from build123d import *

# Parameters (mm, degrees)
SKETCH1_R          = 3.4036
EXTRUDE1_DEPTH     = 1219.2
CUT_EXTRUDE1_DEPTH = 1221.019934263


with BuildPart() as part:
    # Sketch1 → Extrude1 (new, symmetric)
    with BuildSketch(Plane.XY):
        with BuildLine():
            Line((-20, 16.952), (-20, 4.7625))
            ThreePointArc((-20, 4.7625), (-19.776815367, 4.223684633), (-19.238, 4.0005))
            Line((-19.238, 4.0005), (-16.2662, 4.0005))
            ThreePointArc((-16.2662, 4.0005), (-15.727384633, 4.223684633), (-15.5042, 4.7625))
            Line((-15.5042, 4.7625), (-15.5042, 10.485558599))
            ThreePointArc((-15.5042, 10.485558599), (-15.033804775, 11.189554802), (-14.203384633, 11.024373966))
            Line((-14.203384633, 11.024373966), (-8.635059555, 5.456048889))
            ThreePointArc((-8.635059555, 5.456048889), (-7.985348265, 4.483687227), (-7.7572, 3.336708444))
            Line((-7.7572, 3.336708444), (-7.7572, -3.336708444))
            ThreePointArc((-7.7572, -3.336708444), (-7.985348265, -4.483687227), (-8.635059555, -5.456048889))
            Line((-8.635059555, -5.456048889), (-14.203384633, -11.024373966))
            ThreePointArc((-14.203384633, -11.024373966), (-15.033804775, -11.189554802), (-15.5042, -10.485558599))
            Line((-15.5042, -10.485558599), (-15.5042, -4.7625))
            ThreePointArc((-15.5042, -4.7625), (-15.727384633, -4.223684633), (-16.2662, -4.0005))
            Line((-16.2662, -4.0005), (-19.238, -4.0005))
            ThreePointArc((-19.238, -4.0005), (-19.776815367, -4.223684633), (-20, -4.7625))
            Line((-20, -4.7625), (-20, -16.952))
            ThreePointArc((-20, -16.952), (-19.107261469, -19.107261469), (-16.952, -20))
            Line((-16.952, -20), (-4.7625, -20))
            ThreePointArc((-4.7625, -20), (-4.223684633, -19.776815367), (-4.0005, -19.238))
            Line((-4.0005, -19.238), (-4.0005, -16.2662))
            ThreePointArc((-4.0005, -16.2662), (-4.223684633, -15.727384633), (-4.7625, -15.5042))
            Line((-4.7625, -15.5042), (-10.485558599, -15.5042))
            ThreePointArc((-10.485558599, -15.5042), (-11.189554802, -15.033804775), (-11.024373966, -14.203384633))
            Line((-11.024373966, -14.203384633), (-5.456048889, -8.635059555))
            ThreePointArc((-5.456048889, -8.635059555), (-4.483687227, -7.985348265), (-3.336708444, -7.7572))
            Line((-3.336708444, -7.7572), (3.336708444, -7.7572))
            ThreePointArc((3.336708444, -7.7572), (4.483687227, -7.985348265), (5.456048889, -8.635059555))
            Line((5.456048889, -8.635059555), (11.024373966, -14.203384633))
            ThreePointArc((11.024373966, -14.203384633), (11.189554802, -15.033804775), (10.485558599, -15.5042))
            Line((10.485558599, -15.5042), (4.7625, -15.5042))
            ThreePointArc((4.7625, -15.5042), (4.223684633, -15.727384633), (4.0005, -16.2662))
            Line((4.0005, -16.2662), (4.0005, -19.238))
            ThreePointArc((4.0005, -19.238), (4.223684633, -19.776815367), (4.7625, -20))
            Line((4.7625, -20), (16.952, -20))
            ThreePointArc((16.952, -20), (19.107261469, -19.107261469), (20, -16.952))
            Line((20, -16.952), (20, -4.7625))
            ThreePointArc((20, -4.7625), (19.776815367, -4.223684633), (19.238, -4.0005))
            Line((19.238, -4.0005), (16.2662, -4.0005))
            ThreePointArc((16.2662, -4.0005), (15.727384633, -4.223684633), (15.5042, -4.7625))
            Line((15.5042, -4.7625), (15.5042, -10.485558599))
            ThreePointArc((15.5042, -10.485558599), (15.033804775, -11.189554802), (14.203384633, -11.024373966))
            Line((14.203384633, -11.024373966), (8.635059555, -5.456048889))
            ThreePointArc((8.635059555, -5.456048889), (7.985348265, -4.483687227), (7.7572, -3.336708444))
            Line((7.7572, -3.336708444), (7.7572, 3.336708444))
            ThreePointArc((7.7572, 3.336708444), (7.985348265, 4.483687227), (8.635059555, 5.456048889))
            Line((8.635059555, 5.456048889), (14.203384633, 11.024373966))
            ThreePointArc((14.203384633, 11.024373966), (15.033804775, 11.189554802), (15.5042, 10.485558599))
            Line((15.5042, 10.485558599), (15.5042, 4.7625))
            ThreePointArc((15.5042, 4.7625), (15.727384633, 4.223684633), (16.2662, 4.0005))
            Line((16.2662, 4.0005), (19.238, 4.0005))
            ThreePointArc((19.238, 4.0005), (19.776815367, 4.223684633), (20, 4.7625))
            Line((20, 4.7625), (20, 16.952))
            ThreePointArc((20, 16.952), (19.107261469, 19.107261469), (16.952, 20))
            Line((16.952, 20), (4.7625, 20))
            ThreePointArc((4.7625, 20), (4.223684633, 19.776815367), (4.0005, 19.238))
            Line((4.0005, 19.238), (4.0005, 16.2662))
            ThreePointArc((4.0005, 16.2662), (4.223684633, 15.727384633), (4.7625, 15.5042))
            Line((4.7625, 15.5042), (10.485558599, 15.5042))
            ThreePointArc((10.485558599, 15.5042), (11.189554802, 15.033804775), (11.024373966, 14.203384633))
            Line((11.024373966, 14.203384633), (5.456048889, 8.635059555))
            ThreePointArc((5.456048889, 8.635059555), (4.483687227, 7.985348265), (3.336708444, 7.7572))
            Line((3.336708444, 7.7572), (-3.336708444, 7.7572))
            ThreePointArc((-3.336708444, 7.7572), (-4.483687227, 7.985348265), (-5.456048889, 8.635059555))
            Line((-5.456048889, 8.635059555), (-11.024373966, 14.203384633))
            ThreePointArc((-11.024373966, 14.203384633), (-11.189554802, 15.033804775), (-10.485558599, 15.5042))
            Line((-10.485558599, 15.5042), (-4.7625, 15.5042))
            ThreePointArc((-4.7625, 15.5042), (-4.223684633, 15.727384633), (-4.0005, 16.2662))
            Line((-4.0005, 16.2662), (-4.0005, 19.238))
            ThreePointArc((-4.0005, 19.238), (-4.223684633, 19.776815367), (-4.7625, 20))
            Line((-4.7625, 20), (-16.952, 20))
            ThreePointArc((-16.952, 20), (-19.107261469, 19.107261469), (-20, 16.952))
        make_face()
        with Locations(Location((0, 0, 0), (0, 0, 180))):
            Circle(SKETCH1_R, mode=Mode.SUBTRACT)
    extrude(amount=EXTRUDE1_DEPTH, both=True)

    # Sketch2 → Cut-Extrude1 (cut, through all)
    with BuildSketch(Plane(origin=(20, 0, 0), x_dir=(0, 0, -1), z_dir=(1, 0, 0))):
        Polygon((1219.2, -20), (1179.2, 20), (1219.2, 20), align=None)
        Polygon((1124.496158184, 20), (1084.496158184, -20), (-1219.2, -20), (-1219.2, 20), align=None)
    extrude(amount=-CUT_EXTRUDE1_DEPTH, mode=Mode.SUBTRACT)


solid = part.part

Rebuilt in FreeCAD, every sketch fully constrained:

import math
import FreeCAD as App
import Part
import Sketcher

V = App.Vector
Q = App.Units.Quantity

doc = App.newDocument("Part")
body = doc.addObject("PartDesign::Body", "Body")

# Sketch on XY plane
sketch1 = body.newObject("Sketcher::SketchObject", "Sketch")
sketch1.AttachmentSupport = (doc.getObject("XY_Plane"), [""])
sketch1.MapMode = "FlatFace"
sketch1.addGeometry([
    Part.LineSegment(V(-20, 17, 0), V(-20, 4.8, 0)),  # 0
    Part.ArcOfCircle(Part.Circle(V(-19.2, 4.8, 0), V(0, 0, 1), 0.8), math.radians(-180), math.radians(-90)),  # 1
    Part.LineSegment(V(-19.2, 4, 0), V(-16.3, 4, 0)),  # 2
    Part.ArcOfCircle(Part.Circle(V(-16.3, 4.8, 0), V(0, 0, 1), 0.8), math.radians(-90), math.radians(0)),  # 3
    Part.LineSegment(V(-15.5, 4.8, 0), V(-15.5, 10.5, 0)),  # 4
    Part.ArcOfCircle(Part.Circle(V(-14.7, 10.5, 0), V(0, 0, 1), 0.8), math.radians(45), math.radians(180)),  # 5
    Part.LineSegment(V(-14.2, 11, 0), V(-8.6, 5.5, 0)),  # 6
    Part.ArcOfCircle(Part.Circle(V(-10.8, 3.3, 0), V(0, 0, 1), 3), math.radians(0), math.radians(45)),  # 7
    Part.LineSegment(V(-7.8, 3.3, 0), V(-7.8, -3.3, 0)),  # 8
    Part.ArcOfCircle(Part.Circle(V(-10.8, -3.3, 0), V(0, 0, 1), 3), math.radians(-45), math.radians(0)),  # 9
    Part.LineSegment(V(-8.6, -5.5, 0), V(-14.2, -11, 0)),  # 10
    Part.ArcOfCircle(Part.Circle(V(-14.7, -10.5, 0), V(0, 0, 1), 0.8), math.radians(-180), math.radians(-45)),  # 11
    Part.LineSegment(V(-15.5, -10.5, 0), V(-15.5, -4.8, 0)),  # 12
    Part.ArcOfCircle(Part.Circle(V(-16.3, -4.8, 0), V(0, 0, 1), 0.8), math.radians(0), math.radians(90)),  # 13
    Part.LineSegment(V(-16.3, -4, 0), V(-19.2, -4, 0)),  # 14
    Part.ArcOfCircle(Part.Circle(V(-19.2, -4.8, 0), V(0, 0, 1), 0.8), math.radians(90), math.radians(180)),  # 15
    Part.LineSegment(V(-20, -4.8, 0), V(-20, -17, 0)),  # 16
    Part.ArcOfCircle(Part.Circle(V(-17, -17, 0), V(0, 0, 1), 3), math.radians(180), math.radians(270)),  # 17
    Part.LineSegment(V(-17, -20, 0), V(-4.8, -20, 0)),  # 18
    Part.ArcOfCircle(Part.Circle(V(-4.8, -19.2, 0), V(0, 0, 1), 0.8), math.radians(-90), math.radians(0)),  # 19
    Part.LineSegment(V(-4, -19.2, 0), V(-4, -16.3, 0)),  # 20
    Part.ArcOfCircle(Part.Circle(V(-4.8, -16.3, 0), V(0, 0, 1), 0.8), math.radians(0), math.radians(90)),  # 21
    Part.LineSegment(V(-4.8, -15.5, 0), V(-10.5, -15.5, 0)),  # 22
    Part.ArcOfCircle(Part.Circle(V(-10.5, -14.7, 0), V(0, 0, 1), 0.8), math.radians(135), math.radians(270)),  # 23
    Part.LineSegment(V(-11, -14.2, 0), V(-5.5, -8.6, 0)),  # 24
    Part.ArcOfCircle(Part.Circle(V(-3.3, -10.8, 0), V(0, 0, 1), 3), math.radians(90), math.radians(135)),  # 25
    Part.LineSegment(V(-3.3, -7.8, 0), V(3.3, -7.8, 0)),  # 26
    Part.ArcOfCircle(Part.Circle(V(3.3, -10.8, 0), V(0, 0, 1), 3), math.radians(45), math.radians(90)),  # 27
    Part.LineSegment(V(5.5, -8.6, 0), V(11, -14.2, 0)),  # 28
    Part.ArcOfCircle(Part.Circle(V(10.5, -14.7, 0), V(0, 0, 1), 0.8), math.radians(-90), math.radians(45)),  # 29
    Part.LineSegment(V(10.5, -15.5, 0), V(4.8, -15.5, 0)),  # 30
    Part.ArcOfCircle(Part.Circle(V(4.8, -16.3, 0), V(0, 0, 1), 0.8), math.radians(90), math.radians(180)),  # 31
    Part.LineSegment(V(4, -16.3, 0), V(4, -19.2, 0)),  # 32
    Part.ArcOfCircle(Part.Circle(V(4.8, -19.2, 0), V(0, 0, 1), 0.8), math.radians(-180), math.radians(-90)),  # 33
    Part.LineSegment(V(4.8, -20, 0), V(17, -20, 0)),  # 34
    Part.ArcOfCircle(Part.Circle(V(17, -17, 0), V(0, 0, 1), 3), math.radians(-90), math.radians(0)),  # 35
    Part.LineSegment(V(20, -17, 0), V(20, -4.8, 0)),  # 36
    Part.ArcOfCircle(Part.Circle(V(19.2, -4.8, 0), V(0, 0, 1), 0.8), math.radians(0), math.radians(90)),  # 37
    Part.LineSegment(V(19.2, -4, 0), V(16.3, -4, 0)),  # 38
    Part.ArcOfCircle(Part.Circle(V(16.3, -4.8, 0), V(0, 0, 1), 0.8), math.radians(90), math.radians(180)),  # 39
    Part.LineSegment(V(15.5, -4.8, 0), V(15.5, -10.5, 0)),  # 40
    Part.ArcOfCircle(Part.Circle(V(14.7, -10.5, 0), V(0, 0, 1), 0.8), math.radians(-135), math.radians(0)),  # 41
    Part.LineSegment(V(14.2, -11, 0), V(8.6, -5.5, 0)),  # 42
    Part.ArcOfCircle(Part.Circle(V(10.8, -3.3, 0), V(0, 0, 1), 3), math.radians(-180), math.radians(-135)),  # 43
    Part.LineSegment(V(7.8, -3.3, 0), V(7.8, 3.3, 0)),  # 44
    Part.ArcOfCircle(Part.Circle(V(10.8, 3.3, 0), V(0, 0, 1), 3), math.radians(135), math.radians(180)),  # 45
    Part.LineSegment(V(8.6, 5.5, 0), V(14.2, 11, 0)),  # 46
    Part.ArcOfCircle(Part.Circle(V(14.7, 10.5, 0), V(0, 0, 1), 0.8), math.radians(0), math.radians(135)),  # 47
    Part.LineSegment(V(15.5, 10.5, 0), V(15.5, 4.8, 0)),  # 48
    Part.ArcOfCircle(Part.Circle(V(16.3, 4.8, 0), V(0, 0, 1), 0.8), math.radians(-180), math.radians(-90)),  # 49
    Part.LineSegment(V(16.3, 4, 0), V(19.2, 4, 0)),  # 50
    Part.ArcOfCircle(Part.Circle(V(19.2, 4.8, 0), V(0, 0, 1), 0.8), math.radians(-90), math.radians(0)),  # 51
    Part.LineSegment(V(20, 4.8, 0), V(20, 17, 0)),  # 52
    Part.ArcOfCircle(Part.Circle(V(17, 17, 0), V(0, 0, 1), 3), math.radians(0), math.radians(90)),  # 53
    Part.LineSegment(V(17, 20, 0), V(4.8, 20, 0)),  # 54
    Part.ArcOfCircle(Part.Circle(V(4.8, 19.2, 0), V(0, 0, 1), 0.8), math.radians(90), math.radians(180)),  # 55
    Part.LineSegment(V(4, 19.2, 0), V(4, 16.3, 0)),  # 56
    Part.ArcOfCircle(Part.Circle(V(4.8, 16.3, 0), V(0, 0, 1), 0.8), math.radians(-180), math.radians(-90)),  # 57
    Part.LineSegment(V(4.8, 15.5, 0), V(10.5, 15.5, 0)),  # 58
    Part.ArcOfCircle(Part.Circle(V(10.5, 14.7, 0), V(0, 0, 1), 0.8), math.radians(-45), math.radians(90)),  # 59
    Part.LineSegment(V(11, 14.2, 0), V(5.5, 8.6, 0)),  # 60
    Part.ArcOfCircle(Part.Circle(V(3.3, 10.8, 0), V(0, 0, 1), 3), math.radians(-90), math.radians(-45)),  # 61
    Part.LineSegment(V(3.3, 7.8, 0), V(-3.3, 7.8, 0)),  # 62
    Part.ArcOfCircle(Part.Circle(V(-3.3, 10.8, 0), V(0, 0, 1), 3), math.radians(-135), math.radians(-90)),  # 63
    Part.LineSegment(V(-5.5, 8.6, 0), V(-11, 14.2, 0)),  # 64
    Part.ArcOfCircle(Part.Circle(V(-10.5, 14.7, 0), V(0, 0, 1), 0.8), math.radians(90), math.radians(225)),  # 65
    Part.LineSegment(V(-10.5, 15.5, 0), V(-4.8, 15.5, 0)),  # 66
    Part.ArcOfCircle(Part.Circle(V(-4.8, 16.3, 0), V(0, 0, 1), 0.8), math.radians(-90), math.radians(0)),  # 67
    Part.LineSegment(V(-4, 16.3, 0), V(-4, 19.2, 0)),  # 68
    Part.ArcOfCircle(Part.Circle(V(-4.8, 19.2, 0), V(0, 0, 1), 0.8), math.radians(0), math.radians(90)),  # 69
    Part.LineSegment(V(-4.8, 20, 0), V(-17, 20, 0)),  # 70
    Part.ArcOfCircle(Part.Circle(V(-17, 17, 0), V(0, 0, 1), 3), math.radians(90), math.radians(180)),  # 71
    Part.Circle(V(0, 0, 0), V(0, 0, 1), 3.4),  # 72
], False)
sketch1.addConstraint([
    Sketcher.Constraint("Tangent", 0, 2, 1, 1),
    Sketcher.Constraint("Tangent", 1, 2, 2, 1),
    Sketcher.Constraint("Tangent", 2, 2, 3, 1),
    Sketcher.Constraint("Tangent", 3, 2, 4, 1),
    Sketcher.Constraint("Tangent", 4, 2, 5, 2),
    Sketcher.Constraint("Tangent", 5, 1, 6, 1),
    Sketcher.Constraint("Tangent", 6, 2, 7, 2),
    Sketcher.Constraint("Tangent", 7, 1, 8, 1),
    Sketcher.Constraint("Tangent", 8, 2, 9, 2),
    Sketcher.Constraint("Tangent", 9, 1, 10, 1),
    Sketcher.Constraint("Tangent", 10, 2, 11, 2),
    Sketcher.Constraint("Tangent", 11, 1, 12, 1),
    Sketcher.Constraint("Tangent", 12, 2, 13, 1),
    Sketcher.Constraint("Tangent", 13, 2, 14, 1),
    Sketcher.Constraint("Tangent", 14, 2, 15, 1),
    Sketcher.Constraint("Tangent", 15, 2, 16, 1),
    Sketcher.Constraint("Tangent", 16, 2, 17, 1),
    Sketcher.Constraint("Tangent", 17, 2, 18, 1),
    Sketcher.Constraint("Tangent", 18, 2, 19, 1),
    Sketcher.Constraint("Tangent", 19, 2, 20, 1),
    Sketcher.Constraint("Tangent", 20, 2, 21, 1),
    Sketcher.Constraint("Tangent", 21, 2, 22, 1),
    Sketcher.Constraint("Tangent", 22, 2, 23, 2),
    Sketcher.Constraint("Tangent", 23, 1, 24, 1),
    Sketcher.Constraint("Tangent", 24, 2, 25, 2),
    Sketcher.Constraint("Tangent", 25, 1, 26, 1),
    Sketcher.Constraint("Tangent", 26, 2, 27, 2),
    Sketcher.Constraint("Tangent", 27, 1, 28, 1),
    Sketcher.Constraint("Tangent", 28, 2, 29, 2),
    Sketcher.Constraint("Tangent", 29, 1, 30, 1),
    Sketcher.Constraint("Tangent", 30, 2, 31, 1),
    Sketcher.Constraint("Tangent", 31, 2, 32, 1),
    Sketcher.Constraint("Tangent", 32, 2, 33, 1),
    Sketcher.Constraint("Tangent", 33, 2, 34, 1),
    Sketcher.Constraint("Tangent", 34, 2, 35, 1),
    Sketcher.Constraint("Tangent", 35, 2, 36, 1),
    Sketcher.Constraint("Tangent", 36, 2, 37, 1),
    Sketcher.Constraint("Tangent", 37, 2, 38, 1),
    Sketcher.Constraint("Tangent", 38, 2, 39, 1),
    Sketcher.Constraint("Tangent", 39, 2, 40, 1),
    Sketcher.Constraint("Tangent", 40, 2, 41, 2),
    Sketcher.Constraint("Tangent", 41, 1, 42, 1),
    Sketcher.Constraint("Tangent", 42, 2, 43, 2),
    Sketcher.Constraint("Tangent", 43, 1, 44, 1),
    Sketcher.Constraint("Tangent", 44, 2, 45, 2),
    Sketcher.Constraint("Tangent", 45, 1, 46, 1),
    Sketcher.Constraint("Tangent", 46, 2, 47, 2),
    Sketcher.Constraint("Tangent", 47, 1, 48, 1),
    Sketcher.Constraint("Tangent", 48, 2, 49, 1),
    Sketcher.Constraint("Tangent", 49, 2, 50, 1),
    Sketcher.Constraint("Tangent", 50, 2, 51, 1),
    Sketcher.Constraint("Tangent", 51, 2, 52, 1),
    Sketcher.Constraint("Tangent", 52, 2, 53, 1),
    Sketcher.Constraint("Tangent", 53, 2, 54, 1),
    Sketcher.Constraint("Tangent", 54, 2, 55, 1),
    Sketcher.Constraint("Tangent", 55, 2, 56, 1),
    Sketcher.Constraint("Tangent", 56, 2, 57, 1),
    Sketcher.Constraint("Tangent", 57, 2, 58, 1),
    Sketcher.Constraint("Tangent", 58, 2, 59, 2),
    Sketcher.Constraint("Tangent", 59, 1, 60, 1),
    Sketcher.Constraint("Tangent", 60, 2, 61, 2),
    Sketcher.Constraint("Tangent", 61, 1, 62, 1),
    Sketcher.Constraint("Tangent", 62, 2, 63, 2),
    Sketcher.Constraint("Tangent", 63, 1, 64, 1),
    Sketcher.Constraint("Tangent", 64, 2, 65, 2),
    Sketcher.Constraint("Tangent", 65, 1, 66, 1),
    Sketcher.Constraint("Tangent", 66, 2, 67, 1),
    Sketcher.Constraint("Tangent", 67, 2, 68, 1),
    Sketcher.Constraint("Tangent", 68, 2, 69, 1),
    Sketcher.Constraint("Tangent", 69, 2, 70, 1),
    Sketcher.Constraint("Tangent", 70, 2, 71, 1),
    Sketcher.Constraint("Tangent", 71, 2, 0, 1),
    Sketcher.Constraint("Vertical", 0),
    Sketcher.Constraint("Horizontal", 2),
    Sketcher.Constraint("Vertical", 4),
    Sketcher.Constraint("Vertical", 8),
    Sketcher.Constraint("Vertical", 12),
    Sketcher.Constraint("Horizontal", 14),
    Sketcher.Constraint("Vertical", 16),
    Sketcher.Constraint("Horizontal", 18),
    Sketcher.Constraint("Vertical", 20),
    Sketcher.Constraint("Horizontal", 22),
    Sketcher.Constraint("Horizontal", 26),
    Sketcher.Constraint("Horizontal", 30),
    Sketcher.Constraint("Vertical", 32),
    Sketcher.Constraint("Horizontal", 34),
    Sketcher.Constraint("Vertical", 36),
    Sketcher.Constraint("Horizontal", 38),
    Sketcher.Constraint("Vertical", 40),
    Sketcher.Constraint("Vertical", 44),
    Sketcher.Constraint("Vertical", 48),
    Sketcher.Constraint("Horizontal", 50),
    Sketcher.Constraint("Vertical", 52),
    Sketcher.Constraint("Horizontal", 54),
    Sketcher.Constraint("Vertical", 56),
    Sketcher.Constraint("Horizontal", 58),
    Sketcher.Constraint("Horizontal", 62),
    Sketcher.Constraint("Horizontal", 66),
    Sketcher.Constraint("Vertical", 68),
    Sketcher.Constraint("Horizontal", 70),
    Sketcher.Constraint("Coincident", 72, 3, -1, 1),
    Sketcher.Constraint("Equal", 1, 3),
    Sketcher.Constraint("Equal", 3, 5),
    Sketcher.Constraint("Equal", 7, 9),
    Sketcher.Constraint("Equal", 5, 11),
    Sketcher.Constraint("Equal", 11, 13),
    Sketcher.Constraint("Equal", 13, 15),
    Sketcher.Constraint("Equal", 15, 19),
    Sketcher.Constraint("Equal", 19, 21),
    Sketcher.Constraint("Equal", 21, 23),
    Sketcher.Constraint("Equal", 9, 25),
    Sketcher.Constraint("Equal", 25, 27),
    Sketcher.Constraint("Equal", 23, 29),
    Sketcher.Constraint("Equal", 29, 31),
    Sketcher.Constraint("Equal", 31, 33),
    Sketcher.Constraint("Equal", 17, 35),
    Sketcher.Constraint("Equal", 33, 37),
    Sketcher.Constraint("Equal", 37, 39),
    Sketcher.Constraint("Equal", 39, 41),
    Sketcher.Constraint("Equal", 27, 43),
    Sketcher.Constraint("Equal", 43, 45),
    Sketcher.Constraint("Equal", 41, 47),
    Sketcher.Constraint("Equal", 47, 49),
    Sketcher.Constraint("Equal", 49, 51),
    Sketcher.Constraint("Equal", 35, 53),
    Sketcher.Constraint("Equal", 51, 55),
    Sketcher.Constraint("Equal", 55, 57),
    Sketcher.Constraint("Equal", 57, 59),
    Sketcher.Constraint("Equal", 45, 61),
    Sketcher.Constraint("Equal", 61, 63),
    Sketcher.Constraint("Equal", 59, 65),
    Sketcher.Constraint("Equal", 65, 67),
    Sketcher.Constraint("Equal", 67, 69),
    Sketcher.Constraint("Equal", 53, 71),
    Sketcher.Constraint("Symmetric", 1, 3, 37, 3, -1, 1),
    Sketcher.Constraint("Symmetric", 5, 3, 41, 3, -1, 1),
    Sketcher.Constraint("Symmetric", 7, 3, 43, 3, -1, 1),
    Sketcher.Constraint("Symmetric", 11, 3, 47, 3, -1, 1),
    Sketcher.Constraint("Symmetric", 15, 3, 51, 3, -1, 1),
    Sketcher.Constraint("Symmetric", 19, 3, 55, 3, -1, 1),
    Sketcher.Constraint("Symmetric", 23, 3, 59, 3, -1, 1),
    Sketcher.Constraint("Symmetric", 25, 3, 61, 3, -1, 1),
    Sketcher.Constraint("Symmetric", 29, 3, 65, 3, -1, 1),
    Sketcher.Constraint("Symmetric", 33, 3, 69, 3, -1, 1),
    Sketcher.Constraint("Symmetric", 23, 3, 29, 3, -2),
    Sketcher.Constraint("Symmetric", 19, 3, 33, 3, -2),
    Sketcher.Constraint("Symmetric", 15, 3, 37, 3, -2),
    Sketcher.Constraint("Symmetric", 11, 3, 41, 3, -2),
    Sketcher.Constraint("Perpendicular", 6, 10),
    Sketcher.Constraint("Parallel", 10, 24),
    Sketcher.Constraint("Perpendicular", 24, 28),
    Sketcher.Constraint("Perpendicular", 42, 46),
    Sketcher.Constraint("Perpendicular", 60, 64),
    Sketcher.Constraint("Horizontal", 9, 3, 43, 3),
    Sketcher.Constraint("Equal", 70, 0),
    Sketcher.Constraint("Equal", 66, 4),
    Sketcher.Constraint("Equal", 62, 8),
    Sketcher.Constraint("Equal", 50, 20),
    Sketcher.Constraint("Equal", 10, 24),
    Sketcher.Constraint("Radius", 1, Q("0.03 in")),
    Sketcher.Constraint("Radius", 17, Q("0.12 in")),
    Sketcher.Constraint("Diameter", 72, Q("0.268 in")),
    Sketcher.Constraint("Radius", 7, Q("0.118 in")),
    Sketcher.Constraint("DistanceX", 2, 1, 2, 2, Q("0.117 in")),
    Sketcher.Constraint("DistanceY", -1, 1, 1, 3, Q("0.1875 in")),
    Sketcher.Constraint("DistanceX", 18, 1, 18, 2, Q("12.1895 mm")),
    Sketcher.Constraint("Distance", 6, Q("7.874801 mm")),
    Sketcher.Constraint("DistanceX", 22, 2, 22, 1, Q("5.723059 mm")),
])
pad1 = body.newObject("PartDesign::Pad", "Pad")
pad1.Profile = sketch1
pad1.Length = Q("96 in")
pad1.Midplane = True

# Sketch on YZ plane
sketch2 = body.newObject("Sketcher::SketchObject", "Sketch001")
sketch2.AttachmentSupport = (doc.getObject("YZ_Plane"), [""])
sketch2.MapMode = "FlatFace"
sketch2.AttachmentOffset = App.Placement(V(0, 0, 20), App.Rotation())
sketch2.addGeometry([
    Part.LineSegment(V(20, -1179, 0), V(-20, -1219, 0)),  # 0
    Part.LineSegment(V(-20, -1219, 0), V(20, -1219, 0)),  # 1
    Part.LineSegment(V(20, -1219, 0), V(20, -1179, 0)),  # 2
    Part.LineSegment(V(-20, -1084, 0), V(20, -1124, 0)),  # 3
    Part.LineSegment(V(20, -1124, 0), V(20, 1219, 0)),  # 4
    Part.LineSegment(V(20, 1219, 0), V(-20, 1219, 0)),  # 5
    Part.LineSegment(V(-20, 1219, 0), V(-20, -1084, 0)),  # 6
], False)
sketch2.addConstraint([
    Sketcher.Constraint("Coincident", 0, 2, 1, 1),
    Sketcher.Constraint("Coincident", 1, 2, 2, 1),
    Sketcher.Constraint("Coincident", 2, 2, 0, 1),
    Sketcher.Constraint("Coincident", 3, 2, 4, 1),
    Sketcher.Constraint("Coincident", 4, 2, 5, 1),
    Sketcher.Constraint("Coincident", 5, 2, 6, 1),
    Sketcher.Constraint("Coincident", 6, 2, 3, 1),
    Sketcher.Constraint("Horizontal", 1),
    Sketcher.Constraint("Vertical", 2),
    Sketcher.Constraint("Vertical", 4),
    Sketcher.Constraint("Horizontal", 5),
    Sketcher.Constraint("Vertical", 6),
    Sketcher.Constraint("Symmetric", 0, 2, 4, 2, -1, 1),
    Sketcher.Constraint("Perpendicular", 0, 3),
    Sketcher.Constraint("Vertical", 2, 2, 3, 2),
    Sketcher.Constraint("Vertical", 0, 2, 5, 2),
    Sketcher.Constraint("Equal", 5, 2),
    Sketcher.Constraint("DistanceY", 0, 2, -1, 1, Q("48 in")),
    Sketcher.Constraint("DistanceX", 1, 1, 1, 2, Q("40 mm")),
    Sketcher.Constraint("DistanceY", 4, 1, 4, 2, Q("2343.696158 mm")),
])
pocket1 = body.newObject("PartDesign::Pocket", "Pocket")
pocket1.Profile = sketch2
pocket1.Type = "ThroughAll"

doc.recompute()
